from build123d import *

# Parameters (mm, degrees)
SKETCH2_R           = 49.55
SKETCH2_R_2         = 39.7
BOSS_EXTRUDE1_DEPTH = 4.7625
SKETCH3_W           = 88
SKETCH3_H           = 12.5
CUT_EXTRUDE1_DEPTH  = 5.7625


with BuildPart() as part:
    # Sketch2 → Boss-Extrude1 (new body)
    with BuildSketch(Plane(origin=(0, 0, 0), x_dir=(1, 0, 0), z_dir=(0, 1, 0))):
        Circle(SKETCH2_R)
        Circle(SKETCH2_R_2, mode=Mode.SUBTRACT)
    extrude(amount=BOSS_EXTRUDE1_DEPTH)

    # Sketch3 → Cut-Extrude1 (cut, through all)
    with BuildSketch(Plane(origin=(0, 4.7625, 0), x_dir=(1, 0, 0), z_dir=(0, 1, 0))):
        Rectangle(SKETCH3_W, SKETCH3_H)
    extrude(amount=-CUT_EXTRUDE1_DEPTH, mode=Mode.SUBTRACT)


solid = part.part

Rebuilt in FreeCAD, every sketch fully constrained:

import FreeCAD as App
import Part
import Sketcher

V = App.Vector

doc = App.newDocument("Part")
body = doc.addObject("PartDesign::Body", "Body")

# Sketch on XZ plane
sketch1 = body.newObject("Sketcher::SketchObject", "Sketch")
sketch1.AttachmentSupport = (doc.getObject("XZ_Plane"), [""])
sketch1.MapMode = "FlatFace"
sketch1.addGeometry(Part.Circle(V(0, 0, 0), V(0, 0, 1), 50), False)
sketch1.addGeometry(Part.Circle(V(0, 0, 0), V(0, 0, 1), 40), False)
sketch1.addConstraint(Sketcher.Constraint("Coincident", 0, 3, -1, 1))
sketch1.addConstraint(Sketcher.Constraint("Coincident", 1, 3, -1, 1))
sketch1.addConstraint(Sketcher.Constraint("Diameter", 0, 99.1))
sketch1.addConstraint(Sketcher.Constraint("Diameter", 1, 79.4))
pad1 = body.newObject("PartDesign::Pad", "Pad")
pad1.Profile = sketch1
pad1.Length = 4.7625
pad1.Reversed = True

# Sketch on XZ plane
sketch2 = body.newObject("Sketcher::SketchObject", "Sketch001")
sketch2.AttachmentSupport = (doc.getObject("XZ_Plane"), [""])
sketch2.MapMode = "FlatFace"
sketch2.AttachmentOffset = App.Placement(V(0, 0, -4.7625), App.Rotation())
sketch2.addGeometry(Part.LineSegment(V(-44, -6, 0), V(-44, 6, 0)), False)
sketch2.addGeometry(Part.LineSegment(V(-44, 6, 0), V(44, 6, 0)), False)
sketch2.addGeometry(Part.LineSegment(V(44, 6, 0), V(44, -6, 0)), False)
sketch2.addGeometry(Part.LineSegment(V(44, -6, 0), V(-44, -6, 0)), False)
sketch2.addConstraint(Sketcher.Constraint("Coincident", 0, 2, 1, 1))
sketch2.addConstraint(Sketcher.Constraint("Coincident", 1, 2, 2, 1))
sketch2.addConstraint(Sketcher.Constraint("Coincident", 2, 2, 3, 1))
sketch2.addConstraint(Sketcher.Constraint("Coincident", 3, 2, 0, 1))
sketch2.addConstraint(Sketcher.Constraint("Vertical", 0))
sketch2.addConstraint(Sketcher.Constraint("Horizontal", 1))
sketch2.addConstraint(Sketcher.Constraint("Vertical", 2))
sketch2.addConstraint(Sketcher.Constraint("Horizontal", 3))
sketch2.addConstraint(Sketcher.Constraint("Symmetric", 0, 2, 2, 2, -1, 1))
sketch2.addConstraint(Sketcher.Constraint("DistanceX", 1, 1, 1, 2, 88.0))
sketch2.addConstraint(Sketcher.Constraint("DistanceY", 0, 1, 0, 2, 12.5))
pocket1 = body.newObject("PartDesign::Pocket", "Pocket")
pocket1.Profile = sketch2
pocket1.Type = "ThroughAll"
pocket1.Reversed = True

doc.recompute()
